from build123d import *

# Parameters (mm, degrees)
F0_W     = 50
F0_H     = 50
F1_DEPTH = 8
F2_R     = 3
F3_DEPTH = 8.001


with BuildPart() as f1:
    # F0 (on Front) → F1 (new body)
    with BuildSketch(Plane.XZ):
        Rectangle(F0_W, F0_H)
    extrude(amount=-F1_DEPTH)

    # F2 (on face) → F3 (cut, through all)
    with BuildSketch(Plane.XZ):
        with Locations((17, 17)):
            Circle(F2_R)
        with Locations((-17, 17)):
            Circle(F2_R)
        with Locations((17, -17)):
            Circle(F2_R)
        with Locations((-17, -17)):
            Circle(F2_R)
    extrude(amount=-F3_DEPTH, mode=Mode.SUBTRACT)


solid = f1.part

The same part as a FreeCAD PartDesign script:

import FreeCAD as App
import Part
import Sketcher
from FreeCAD import Vector
Q = App.Units.Quantity

doc = App.newDocument("Part")
body = doc.addObject("PartDesign::Body", "Body")

sketch1 = doc.addObject("Sketcher::SketchObject", "Sketch")
body.addObject(sketch1)
sketch1.AttachmentSupport = (doc.XZ_Plane, [""])
sketch1.MapMode = "FlatFace"
sketch1.addGeometry([
    Part.LineSegment(Vector(-25, 25, 0), Vector(-25, -25, 0)),
    Part.LineSegment(Vector(-25, -25, 0), Vector(25, -25, 0)),
    Part.LineSegment(Vector(25, -25, 0), Vector(25, 25, 0)),
    Part.LineSegment(Vector(25, 25, 0), Vector(-25, 25, 0)),
], False)
sketch1.addConstraint([
    Sketcher.Constraint("Coincident", 0, 2, 1, 1),
    Sketcher.Constraint("Coincident", 1, 2, 2, 1),
    Sketcher.Constraint("Coincident", 2, 2, 3, 1),
    Sketcher.Constraint("Coincident", 3, 2, 0, 1),
    Sketcher.Constraint("Vertical", 0),
    Sketcher.Constraint("Horizontal", 1),
    Sketcher.Constraint("Vertical", 2),
    Sketcher.Constraint("Horizontal", 3),
    Sketcher.Constraint("Symmetric", 0, 2, 2, 2, -1, 1),
    Sketcher.Constraint("Equal", 3, 0),
    Sketcher.Constraint("DistanceX", 1, 1, 1, 2, Q("50 mm")),
])
pad1 = doc.addObject("PartDesign::Pad", "Pad")
body.addObject(pad1)
pad1.Profile = sketch1
pad1.Length = 8
pad1.Reversed = True

sketch2 = doc.addObject("Sketcher::SketchObject", "Sketch001")
body.addObject(sketch2)
sketch2.AttachmentSupport = (doc.XZ_Plane, [""])
sketch2.MapMode = "FlatFace"
sketch2.addGeometry([
    Part.Circle(Vector(17, 17, 0), Vector(0, 0, 1), 3),
    Part.Circle(Vector(-17, 17, 0), Vector(0, 0, 1), 3),
    Part.Circle(Vector(17, -17, 0), Vector(0, 0, 1), 3),
    Part.Circle(Vector(-17, -17, 0), Vector(0, 0, 1), 3),
], False)
sketch2.addConstraint([
    Sketcher.Constraint("Equal", 0, 1),
    Sketcher.Constraint("Equal", 1, 2),
    Sketcher.Constraint("Equal", 2, 3),
    Sketcher.Constraint("Symmetric", 1, 3, 2, 3, -1, 1),
    Sketcher.Constraint("Symmetric", 0, 3, 3, 3, -1, 1),
    Sketcher.Constraint("Symmetric", 0, 3, 1, 3, -2),
    Sketcher.Constraint("Diameter", 0, Q("6 mm")),
    Sketcher.Constraint("DistanceX", -1, 1, 0, 3, Q("17 mm")),
    Sketcher.Constraint("DistanceY", -1, 1, 0, 3, Q("17 mm")),
])
pocket1 = doc.addObject("PartDesign::Pocket", "Pocket")
body.addObject(pocket1)
pocket1.Profile = sketch2
pocket1.Type = "ThroughAll"

doc.recompute()
